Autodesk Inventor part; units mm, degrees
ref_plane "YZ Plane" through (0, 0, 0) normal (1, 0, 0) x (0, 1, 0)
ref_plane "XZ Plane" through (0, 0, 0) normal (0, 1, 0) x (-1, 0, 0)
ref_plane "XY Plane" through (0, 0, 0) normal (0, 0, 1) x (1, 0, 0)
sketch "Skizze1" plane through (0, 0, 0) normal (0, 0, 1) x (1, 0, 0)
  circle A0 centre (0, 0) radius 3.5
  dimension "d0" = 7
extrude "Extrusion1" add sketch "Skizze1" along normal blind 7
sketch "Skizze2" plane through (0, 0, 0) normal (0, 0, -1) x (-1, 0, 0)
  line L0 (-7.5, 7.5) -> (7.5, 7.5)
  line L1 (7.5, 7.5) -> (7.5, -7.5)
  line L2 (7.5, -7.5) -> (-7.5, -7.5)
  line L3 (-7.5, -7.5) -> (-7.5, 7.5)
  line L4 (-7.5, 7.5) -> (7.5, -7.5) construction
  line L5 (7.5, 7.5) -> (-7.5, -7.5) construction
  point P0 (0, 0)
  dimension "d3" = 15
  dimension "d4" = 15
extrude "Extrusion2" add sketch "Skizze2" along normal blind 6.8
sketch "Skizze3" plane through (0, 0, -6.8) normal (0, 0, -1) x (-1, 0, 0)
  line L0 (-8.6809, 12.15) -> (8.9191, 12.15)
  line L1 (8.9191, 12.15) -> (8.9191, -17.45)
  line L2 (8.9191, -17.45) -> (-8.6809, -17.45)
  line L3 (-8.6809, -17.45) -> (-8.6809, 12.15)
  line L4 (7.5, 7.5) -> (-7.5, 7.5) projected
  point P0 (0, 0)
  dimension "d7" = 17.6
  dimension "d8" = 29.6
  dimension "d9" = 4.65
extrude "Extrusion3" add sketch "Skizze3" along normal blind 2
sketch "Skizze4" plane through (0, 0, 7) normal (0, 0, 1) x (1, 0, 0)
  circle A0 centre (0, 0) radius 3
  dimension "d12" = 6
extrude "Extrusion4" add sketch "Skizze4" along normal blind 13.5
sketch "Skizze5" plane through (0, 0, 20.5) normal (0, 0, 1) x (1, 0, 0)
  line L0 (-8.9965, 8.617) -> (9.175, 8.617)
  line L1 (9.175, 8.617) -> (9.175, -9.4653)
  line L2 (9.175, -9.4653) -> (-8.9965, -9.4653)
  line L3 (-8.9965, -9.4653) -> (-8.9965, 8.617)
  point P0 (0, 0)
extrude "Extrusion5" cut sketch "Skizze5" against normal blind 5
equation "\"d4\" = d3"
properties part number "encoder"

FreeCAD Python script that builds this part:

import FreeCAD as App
import Part
import Sketcher

V = App.Vector
Q = App.Units.Quantity


def add_polygon(sketch, points):
    """Adds a closed chain of lines whose ends are joined by coincident constraints."""
    first, n = sketch.GeometryCount, len(points)
    for a, b in zip(points, points[1:] + points[:1]):
        sketch.addGeometry(Part.LineSegment(App.Vector(*a, 0), App.Vector(*b, 0)), False)
    for i in range(n):
        sketch.addConstraint(Sketcher.Constraint("Coincident", first + i, 2, first + (i + 1) % n, 1))

doc = App.newDocument("Part")
body = doc.addObject("PartDesign::Body", "Body")

sketch1 = doc.addObject("Sketcher::SketchObject", "Sketch")
body.addObject(sketch1)
sketch1.AttachmentSupport = (doc.XY_Plane, [""])
sketch1.MapMode = "FlatFace"
sketch1.addGeometry(Part.Circle(V(0, 0, 0), V(0, 0, 1), 3.5), False)
sketch1.addConstraint([
    Sketcher.Constraint("Coincident", 0, 3, -1, 1),
    Sketcher.Constraint("Diameter", 0, Q("7 mm")),
])
pad1 = doc.addObject("PartDesign::Pad", "Pad")
body.addObject(pad1)
pad1.Profile = sketch1
pad1.Length = 7

sketch2 = doc.addObject("Sketcher::SketchObject", "Sketch001")
body.addObject(sketch2)
sketch2.AttachmentSupport = (doc.XY_Plane, [""])
sketch2.MapMode = "FlatFace"
add_polygon(sketch2, [(-8, 8), (8, 8), (8, -8), (-8, -8)])
sketch2.addConstraint([
    Sketcher.Constraint("Horizontal", 0),
    Sketcher.Constraint("Vertical", 1),
    Sketcher.Constraint("Horizontal", 2),
    Sketcher.Constraint("Vertical", 3),
    Sketcher.Constraint("Symmetric", 0, 2, 2, 2, -1, 1),
    Sketcher.Constraint("Equal", 2, 1),
    Sketcher.Constraint("DistanceX", 0, 1, 0, 2, Q("15 mm")),
])
pad2 = doc.addObject("PartDesign::Pad", "Pad001")
body.addObject(pad2)
pad2.Profile = sketch2
pad2.Length = 6.8
pad2.Reversed = True

sketch3 = doc.addObject("Sketcher::SketchObject", "Sketch002")
body.addObject(sketch3)
sketch3.AttachmentSupport = (doc.XY_Plane, [""])
sketch3.MapMode = "FlatFace"
sketch3.AttachmentOffset = App.Placement(V(0, 0, -6.8), App.Rotation())
add_polygon(sketch3, [(-9, 12), (9, 12), (9, -17), (-9, -17)])
sketch3.addConstraint([
    Sketcher.Constraint("Horizontal", 0),
    Sketcher.Constraint("Vertical", 1),
    Sketcher.Constraint("Horizontal", 2),
    Sketcher.Constraint("Vertical", 3),
    Sketcher.Constraint("DistanceX", 0, 1, 0, 2, Q("17.6 mm")),
    Sketcher.Constraint("DistanceY", 1, 2, 1, 1, Q("29.6 mm")),
    Sketcher.Constraint("DistanceY", -1, 1, 0, 2, Q("12.15 mm")),
    Sketcher.Constraint("DistanceX", -1, 1, 0, 2, Q("8.681 mm")),
])
pad3 = doc.addObject("PartDesign::Pad", "Pad002")
body.addObject(pad3)
pad3.Profile = sketch3
pad3.Length = 2
pad3.Reversed = True

sketch4 = doc.addObject("Sketcher::SketchObject", "Sketch003")
body.addObject(sketch4)
sketch4.AttachmentSupport = (doc.XY_Plane, [""])
sketch4.MapMode = "FlatFace"
sketch4.AttachmentOffset = App.Placement(V(0, 0, 7), App.Rotation())
sketch4.addGeometry(Part.Circle(V(0, 0, 0), V(0, 0, 1), 3), False)
sketch4.addConstraint([
    Sketcher.Constraint("Coincident", 0, 3, -1, 1),
    Sketcher.Constraint("Diameter", 0, Q("6 mm")),
])
pad4 = doc.addObject("PartDesign::Pad", "Pad003")
body.addObject(pad4)
pad4.Profile = sketch4
pad4.Length = 13.5

sketch5 = doc.addObject("Sketcher::SketchObject", "Sketch004")
body.addObject(sketch5)
sketch5.AttachmentSupport = (doc.XY_Plane, [""])
sketch5.MapMode = "FlatFace"
sketch5.AttachmentOffset = App.Placement(V(0, 0, 20.5), App.Rotation())
add_polygon(sketch5, [(9, 9), (-9, 9), (-9, -9), (9, -9)])
sketch5.addConstraint([
    Sketcher.Constraint("Horizontal", 0),
    Sketcher.Constraint("Vertical", 1),
    Sketcher.Constraint("Horizontal", 2),
    Sketcher.Constraint("Vertical", 3),
    Sketcher.Constraint("DistanceX", 0, 2, 0, 1, Q("18.1715 mm")),
    Sketcher.Constraint("DistanceY", 1, 2, 1, 1, Q("18.0823 mm")),
    Sketcher.Constraint("DistanceY", -1, 1, 0, 2, Q("8.617 mm")),
    Sketcher.Constraint("DistanceX", -1, 1, 2, 2, Q("9.175 mm")),
])
pocket1 = doc.addObject("PartDesign::Pocket", "Pocket")
body.addObject(pocket1)
pocket1.Profile = sketch5
pocket1.Length = 5

doc.recompute()
